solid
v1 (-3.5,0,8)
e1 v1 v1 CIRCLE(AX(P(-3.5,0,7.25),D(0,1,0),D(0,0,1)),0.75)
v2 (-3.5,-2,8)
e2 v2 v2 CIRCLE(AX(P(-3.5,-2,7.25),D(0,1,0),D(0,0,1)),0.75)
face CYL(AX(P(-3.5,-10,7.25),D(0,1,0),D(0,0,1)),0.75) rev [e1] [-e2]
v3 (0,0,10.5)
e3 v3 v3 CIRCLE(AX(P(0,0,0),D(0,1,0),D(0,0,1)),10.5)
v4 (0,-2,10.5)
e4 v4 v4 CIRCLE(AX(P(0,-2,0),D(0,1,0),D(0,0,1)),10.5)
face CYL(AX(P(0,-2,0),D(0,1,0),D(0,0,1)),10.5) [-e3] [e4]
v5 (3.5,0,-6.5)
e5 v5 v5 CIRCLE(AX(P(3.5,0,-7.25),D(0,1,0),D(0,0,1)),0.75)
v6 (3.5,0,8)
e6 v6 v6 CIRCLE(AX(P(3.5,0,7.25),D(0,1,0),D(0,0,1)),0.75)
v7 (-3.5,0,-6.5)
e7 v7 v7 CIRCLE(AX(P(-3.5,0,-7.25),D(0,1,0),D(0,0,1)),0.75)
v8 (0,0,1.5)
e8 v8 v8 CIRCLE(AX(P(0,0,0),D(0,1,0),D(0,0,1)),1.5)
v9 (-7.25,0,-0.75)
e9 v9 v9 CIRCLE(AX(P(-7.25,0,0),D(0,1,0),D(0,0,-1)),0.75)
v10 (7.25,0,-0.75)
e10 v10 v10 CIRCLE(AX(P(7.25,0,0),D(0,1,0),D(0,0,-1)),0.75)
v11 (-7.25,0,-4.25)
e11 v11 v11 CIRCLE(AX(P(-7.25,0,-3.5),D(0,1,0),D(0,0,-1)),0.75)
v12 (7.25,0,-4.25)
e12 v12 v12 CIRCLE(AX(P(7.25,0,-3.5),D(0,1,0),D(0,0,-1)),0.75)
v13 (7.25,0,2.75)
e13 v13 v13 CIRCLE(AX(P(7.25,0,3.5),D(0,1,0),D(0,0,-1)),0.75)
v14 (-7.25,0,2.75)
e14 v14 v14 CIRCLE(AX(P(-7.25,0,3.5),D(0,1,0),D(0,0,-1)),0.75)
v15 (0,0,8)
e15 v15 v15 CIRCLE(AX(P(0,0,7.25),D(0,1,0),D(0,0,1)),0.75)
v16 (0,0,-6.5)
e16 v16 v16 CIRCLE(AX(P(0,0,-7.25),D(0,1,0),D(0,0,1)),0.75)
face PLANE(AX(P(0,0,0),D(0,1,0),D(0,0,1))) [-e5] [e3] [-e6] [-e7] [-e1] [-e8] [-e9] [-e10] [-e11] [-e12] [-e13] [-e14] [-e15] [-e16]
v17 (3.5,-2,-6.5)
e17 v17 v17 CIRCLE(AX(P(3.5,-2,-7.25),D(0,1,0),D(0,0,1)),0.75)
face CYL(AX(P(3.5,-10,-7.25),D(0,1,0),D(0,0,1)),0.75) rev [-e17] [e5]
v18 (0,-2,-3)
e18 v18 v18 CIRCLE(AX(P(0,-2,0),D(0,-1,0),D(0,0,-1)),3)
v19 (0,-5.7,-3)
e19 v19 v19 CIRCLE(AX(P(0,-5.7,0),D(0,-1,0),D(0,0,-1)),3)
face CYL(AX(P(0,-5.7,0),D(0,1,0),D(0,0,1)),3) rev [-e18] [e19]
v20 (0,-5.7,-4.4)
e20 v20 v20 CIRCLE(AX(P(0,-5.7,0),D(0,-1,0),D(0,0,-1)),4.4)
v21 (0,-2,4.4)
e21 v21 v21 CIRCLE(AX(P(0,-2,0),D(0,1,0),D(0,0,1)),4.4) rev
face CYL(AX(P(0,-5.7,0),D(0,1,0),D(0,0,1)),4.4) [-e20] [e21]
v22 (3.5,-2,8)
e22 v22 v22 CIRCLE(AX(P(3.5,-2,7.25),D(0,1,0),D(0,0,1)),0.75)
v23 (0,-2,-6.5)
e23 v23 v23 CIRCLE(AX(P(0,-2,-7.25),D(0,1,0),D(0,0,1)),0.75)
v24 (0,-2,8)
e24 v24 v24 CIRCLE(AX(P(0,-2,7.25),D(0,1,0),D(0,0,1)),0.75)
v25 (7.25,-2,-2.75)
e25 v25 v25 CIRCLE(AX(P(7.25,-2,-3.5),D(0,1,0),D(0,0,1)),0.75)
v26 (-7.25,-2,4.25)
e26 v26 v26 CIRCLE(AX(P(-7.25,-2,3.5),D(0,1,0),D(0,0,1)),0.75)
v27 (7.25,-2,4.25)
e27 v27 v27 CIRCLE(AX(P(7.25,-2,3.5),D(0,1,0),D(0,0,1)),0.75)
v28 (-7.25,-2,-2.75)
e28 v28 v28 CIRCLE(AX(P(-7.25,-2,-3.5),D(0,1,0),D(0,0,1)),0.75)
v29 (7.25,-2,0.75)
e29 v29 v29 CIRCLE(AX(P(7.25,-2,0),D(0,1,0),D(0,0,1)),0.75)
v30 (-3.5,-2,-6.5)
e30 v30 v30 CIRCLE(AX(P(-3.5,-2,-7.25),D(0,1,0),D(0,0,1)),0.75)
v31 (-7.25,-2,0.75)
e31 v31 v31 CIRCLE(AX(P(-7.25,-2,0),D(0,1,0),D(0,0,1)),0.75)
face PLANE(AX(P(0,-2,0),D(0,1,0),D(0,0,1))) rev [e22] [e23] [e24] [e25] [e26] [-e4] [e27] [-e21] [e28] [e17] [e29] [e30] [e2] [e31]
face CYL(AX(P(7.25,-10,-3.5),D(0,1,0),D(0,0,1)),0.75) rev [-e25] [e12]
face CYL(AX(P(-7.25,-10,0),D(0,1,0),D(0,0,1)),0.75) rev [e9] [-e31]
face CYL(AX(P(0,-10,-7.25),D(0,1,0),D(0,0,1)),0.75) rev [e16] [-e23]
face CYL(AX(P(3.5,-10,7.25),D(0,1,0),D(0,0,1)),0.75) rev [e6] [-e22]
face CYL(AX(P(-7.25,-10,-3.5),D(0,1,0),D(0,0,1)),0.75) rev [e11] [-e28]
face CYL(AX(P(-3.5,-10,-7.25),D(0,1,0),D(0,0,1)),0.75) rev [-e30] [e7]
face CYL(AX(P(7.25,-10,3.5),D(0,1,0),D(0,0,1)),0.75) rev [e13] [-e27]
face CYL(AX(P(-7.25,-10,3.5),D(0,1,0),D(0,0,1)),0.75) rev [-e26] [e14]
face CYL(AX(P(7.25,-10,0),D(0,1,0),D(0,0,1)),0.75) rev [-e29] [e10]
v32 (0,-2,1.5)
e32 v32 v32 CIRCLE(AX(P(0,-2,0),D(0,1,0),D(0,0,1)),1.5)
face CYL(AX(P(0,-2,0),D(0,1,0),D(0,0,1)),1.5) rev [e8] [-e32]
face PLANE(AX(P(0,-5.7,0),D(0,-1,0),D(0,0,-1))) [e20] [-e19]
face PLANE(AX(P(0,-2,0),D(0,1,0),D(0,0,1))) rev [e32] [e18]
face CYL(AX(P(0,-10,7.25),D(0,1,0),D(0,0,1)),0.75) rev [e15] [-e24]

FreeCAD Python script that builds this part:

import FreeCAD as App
import Part
import Sketcher
Q = App.Units.Quantity

doc = App.newDocument("Part")
body = doc.addObject("PartDesign::Body", "Body")

# Sketch on XZ plane
sketch1 = doc.addObject("Sketcher::SketchObject", "Sketch")
body.addObject(sketch1)
sketch1.AttachmentSupport = (doc.XZ_Plane, [""])
sketch1.MapMode = "FlatFace"
sketch1.addGeometry([
    Part.Circle(App.Vector(0, 0, 0), App.Vector(0, 0, 1), 10.5),
    Part.Circle(App.Vector(0, 0, 0), App.Vector(0, 0, 1), 1.5),
], False)
sketch1.addConstraint([
    Sketcher.Constraint("Coincident", 0, 3, -1, 1),
    Sketcher.Constraint("Coincident", 1, 3, -1, 1),
    Sketcher.Constraint("Diameter", 0, Q("21 mm")),
    Sketcher.Constraint("Diameter", 1, Q("3 mm")),
])
pad1 = doc.addObject("PartDesign::Pad", "Pad")
body.addObject(pad1)
pad1.Profile = sketch1
pad1.Length = 2

# Sketch on XZ plane
sketch2 = doc.addObject("Sketcher::SketchObject", "Sketch001")
body.addObject(sketch2)
sketch2.AttachmentSupport = (doc.XZ_Plane, [""])
sketch2.MapMode = "FlatFace"
sketch2.AttachmentOffset = App.Placement(App.Vector(0, 0, 2), App.Rotation())
sketch2.addGeometry([
    Part.Circle(App.Vector(0, 0, 0), App.Vector(0, 0, 1), 4.4),
    Part.Circle(App.Vector(0, 0, 0), App.Vector(0, 0, 1), 3),
], False)
sketch2.addConstraint([
    Sketcher.Constraint("Coincident", 0, 3, -1, 1),
    Sketcher.Constraint("Coincident", 1, 3, -1, 1),
    Sketcher.Constraint("Diameter", 1, Q("6 mm")),
    Sketcher.Constraint("Diameter", 0, Q("8.8 mm")),
])
pad2 = doc.addObject("PartDesign::Pad", "Pad001")
body.addObject(pad2)
pad2.Profile = sketch2
pad2.Length = 3.7

# Sketch on XZ plane
sketch3 = doc.addObject("Sketcher::SketchObject", "Sketch002")
body.addObject(sketch3)
sketch3.AttachmentSupport = (doc.XZ_Plane, [""])
sketch3.MapMode = "FlatFace"
sketch3.addGeometry([
    Part.Circle(App.Vector(0, -7.2, 0), App.Vector(0, 0, 1), 0.8),  # 0
    Part.Circle(App.Vector(3.5, -7.2, 0), App.Vector(0, 0, 1), 0.8),  # 1
    Part.Circle(App.Vector(-3.5, -7.2, 0), App.Vector(0, 0, 1), 0.8),  # 2
    Part.Circle(App.Vector(-7.2, -3.5, 0), App.Vector(0, 0, 1), 0.8),  # 3
    Part.Circle(App.Vector(-7.2, 3.5, 0), App.Vector(0, 0, 1), 0.8),  # 4
    Part.Circle(App.Vector(-7.2, 0, 0), App.Vector(0, 0, 1), 0.8),  # 5
    Part.Circle(App.Vector(7.2, 3.5, 0), App.Vector(0, 0, 1), 0.8),  # 6
    Part.Circle(App.Vector(7.2, -3.5, 0), App.Vector(0, 0, 1), 0.8),  # 7
    Part.Circle(App.Vector(7.2, 0, 0), App.Vector(0, 0, 1), 0.8),  # 8
    Part.Circle(App.Vector(0, 7.2, 0), App.Vector(0, 0, 1), 0.8),  # 9
    Part.Circle(App.Vector(-3.5, 7.2, 0), App.Vector(0, 0, 1), 0.8),  # 10
    Part.Circle(App.Vector(3.5, 7.2, 0), App.Vector(0, 0, 1), 0.8),  # 11
], False)
sketch3.addConstraint([
    Sketcher.Constraint("Equal", 0, 1),
    Sketcher.Constraint("Equal", 1, 2),
    Sketcher.Constraint("Equal", 2, 3),
    Sketcher.Constraint("Equal", 3, 4),
    Sketcher.Constraint("Equal", 4, 5),
    Sketcher.Constraint("Equal", 5, 6),
    Sketcher.Constraint("Equal", 6, 7),
    Sketcher.Constraint("Equal", 7, 8),
    Sketcher.Constraint("Equal", 8, 9),
    Sketcher.Constraint("Equal", 9, 10),
    Sketcher.Constraint("Equal", 10, 11),
    Sketcher.Constraint("Symmetric", 3, 3, 6, 3, -1, 1),
    Sketcher.Constraint("Symmetric", 4, 3, 7, 3, -1, 1),
    Sketcher.Constraint("Symmetric", 5, 3, 8, 3, -1, 1),
    Sketcher.Constraint("Symmetric", 0, 3, 9, 3, -1, 1),
    Sketcher.Constraint("Symmetric", 1, 3, 10, 3, -1, 1),
    Sketcher.Constraint("Symmetric", 2, 3, 11, 3, -1, 1),
    Sketcher.Constraint("Symmetric", 1, 3, 2, 3, -2),
    Sketcher.Constraint("Symmetric", 4, 3, 6, 3, -2),
    Sketcher.Constraint("PointOnObject", 0, 3, -2),
    Sketcher.Constraint("PointOnObject", 5, 3, -1),
    Sketcher.Constraint("Horizontal", 0, 3, 1, 3),
    Sketcher.Constraint("Vertical", 4, 3, 5, 3),
    Sketcher.Constraint("Diameter", 0, Q("1.5 mm")),
    Sketcher.Constraint("DistanceX", 2, 3, 1, 3, Q("7 mm")),
    Sketcher.Constraint("DistanceY", 3, 3, 4, 3, Q("7 mm")),
    Sketcher.Constraint("DistanceX", 4, 3, 6, 3, Q("14.5 mm")),
    Sketcher.Constraint("DistanceY", 0, 3, -1, 1, Q("7.25 mm")),
])
pocket1 = doc.addObject("PartDesign::Pocket", "Pocket")
body.addObject(pocket1)
pocket1.Profile = sketch3
pocket1.Length = 10
pocket1.Reversed = True

doc.recompute()
